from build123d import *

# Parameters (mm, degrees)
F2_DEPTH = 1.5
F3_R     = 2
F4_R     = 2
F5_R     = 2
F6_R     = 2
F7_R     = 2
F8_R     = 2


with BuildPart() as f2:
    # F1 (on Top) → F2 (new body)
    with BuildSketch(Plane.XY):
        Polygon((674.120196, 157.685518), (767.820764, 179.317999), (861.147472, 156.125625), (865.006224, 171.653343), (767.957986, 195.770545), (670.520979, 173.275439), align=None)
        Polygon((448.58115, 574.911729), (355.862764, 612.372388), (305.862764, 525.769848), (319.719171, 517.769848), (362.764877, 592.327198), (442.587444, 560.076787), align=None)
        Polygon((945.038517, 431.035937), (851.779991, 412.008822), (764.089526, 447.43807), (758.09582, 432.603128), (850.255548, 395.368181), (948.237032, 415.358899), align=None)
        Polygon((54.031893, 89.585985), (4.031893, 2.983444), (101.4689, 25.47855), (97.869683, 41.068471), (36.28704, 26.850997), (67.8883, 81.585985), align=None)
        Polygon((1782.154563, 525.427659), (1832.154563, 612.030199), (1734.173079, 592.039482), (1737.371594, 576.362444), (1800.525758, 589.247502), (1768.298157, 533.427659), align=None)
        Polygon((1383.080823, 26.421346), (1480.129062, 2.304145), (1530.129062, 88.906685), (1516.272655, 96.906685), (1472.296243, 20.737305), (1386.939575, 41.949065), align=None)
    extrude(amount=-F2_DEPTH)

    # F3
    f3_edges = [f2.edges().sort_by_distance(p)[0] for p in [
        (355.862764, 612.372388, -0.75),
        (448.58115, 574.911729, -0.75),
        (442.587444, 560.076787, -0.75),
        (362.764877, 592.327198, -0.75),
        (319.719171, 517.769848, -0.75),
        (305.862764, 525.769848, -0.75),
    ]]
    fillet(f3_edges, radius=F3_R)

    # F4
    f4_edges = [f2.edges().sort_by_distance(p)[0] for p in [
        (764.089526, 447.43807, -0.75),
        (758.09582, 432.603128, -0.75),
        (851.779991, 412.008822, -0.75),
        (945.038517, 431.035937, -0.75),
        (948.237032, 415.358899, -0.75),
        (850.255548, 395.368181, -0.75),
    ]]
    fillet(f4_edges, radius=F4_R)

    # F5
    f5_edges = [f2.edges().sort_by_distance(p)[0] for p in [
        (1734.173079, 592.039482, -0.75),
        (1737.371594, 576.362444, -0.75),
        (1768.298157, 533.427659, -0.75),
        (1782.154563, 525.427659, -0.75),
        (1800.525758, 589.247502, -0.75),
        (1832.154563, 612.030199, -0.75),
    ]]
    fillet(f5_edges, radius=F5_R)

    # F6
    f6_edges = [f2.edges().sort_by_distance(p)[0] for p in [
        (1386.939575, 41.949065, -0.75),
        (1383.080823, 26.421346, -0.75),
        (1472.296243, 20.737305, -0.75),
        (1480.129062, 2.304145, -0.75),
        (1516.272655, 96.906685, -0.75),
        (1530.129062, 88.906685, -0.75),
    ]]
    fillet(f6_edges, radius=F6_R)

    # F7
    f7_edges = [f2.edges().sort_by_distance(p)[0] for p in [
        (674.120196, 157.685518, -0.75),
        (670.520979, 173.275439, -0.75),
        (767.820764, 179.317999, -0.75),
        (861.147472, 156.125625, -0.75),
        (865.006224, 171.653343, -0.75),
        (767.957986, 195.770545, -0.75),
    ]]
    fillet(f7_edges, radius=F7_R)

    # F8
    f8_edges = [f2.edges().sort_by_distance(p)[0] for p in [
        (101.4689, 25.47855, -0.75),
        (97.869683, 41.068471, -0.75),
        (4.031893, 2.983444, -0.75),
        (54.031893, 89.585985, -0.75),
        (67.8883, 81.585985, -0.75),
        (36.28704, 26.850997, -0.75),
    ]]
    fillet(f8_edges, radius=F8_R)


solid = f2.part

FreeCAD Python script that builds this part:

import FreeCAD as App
import Part
import Sketcher
Q = App.Units.Quantity


def edges_at(feature, points):
    """Names of the edges that pass closest to the given points."""
    edges = feature.Shape.Edges
    near = lambda p: min(range(len(edges)), key=lambda i: edges[i].distToShape(Part.Vertex(*p))[0])
    return sorted({f"Edge{near(p) + 1}" for p in points})


def add_polygon(sketch, points):
    """Adds a closed chain of lines whose ends are joined by coincident constraints."""
    first, n = sketch.GeometryCount, len(points)
    for a, b in zip(points, points[1:] + points[:1]):
        sketch.addGeometry(Part.LineSegment(App.Vector(*a, 0), App.Vector(*b, 0)), False)
    for i in range(n):
        sketch.addConstraint(Sketcher.Constraint("Coincident", first + i, 2, first + (i + 1) % n, 1))

doc = App.newDocument("Part")
body = doc.addObject("PartDesign::Body", "Body")
body.AllowCompound = True

sketch1 = doc.addObject("Sketcher::SketchObject", "Sketch")
body.addObject(sketch1)
sketch1.AttachmentSupport = (doc.XY_Plane, [""])
sketch1.MapMode = "FlatFace"
add_polygon(sketch1, [(674, 158), (768, 179), (861, 156), (865, 172), (768, 196), (671, 173)])
add_polygon(sketch1, [(449, 575), (356, 612), (306, 526), (320, 518), (363, 592), (443, 560)])
add_polygon(sketch1, [(945, 431), (852, 412), (764, 447), (758, 433), (850, 395), (948, 415)])
add_polygon(sketch1, [(54, 90), (4, 3), (101, 25), (98, 41), (36, 27), (68, 82)])
add_polygon(sketch1, [(1782, 525), (1832, 612), (1734, 592), (1737, 576), (1801, 589), (1768, 533)])
add_polygon(sketch1, [(1383, 26), (1480, 2), (1530, 89), (1516, 97), (1472, 21), (1387, 42)])
sketch1.addConstraint(Sketcher.Constraint("Perpendicular", 1, 2))
sketch1.addConstraint(Sketcher.Constraint("Perpendicular", 2, 3))
sketch1.addConstraint(Sketcher.Constraint("Parallel", 0, 4))
sketch1.addConstraint(Sketcher.Constraint("Perpendicular", 4, 5))
sketch1.addConstraint(Sketcher.Constraint("Perpendicular", 7, 8))
sketch1.addConstraint(Sketcher.Constraint("Perpendicular", 8, 9))
sketch1.addConstraint(Sketcher.Constraint("Parallel", 6, 10))
sketch1.addConstraint(Sketcher.Constraint("Perpendicular", 10, 11))
sketch1.addConstraint(Sketcher.Constraint("Perpendicular", 11, 13))
sketch1.addConstraint(Sketcher.Constraint("Perpendicular", 13, 14))
sketch1.addConstraint(Sketcher.Constraint("Perpendicular", 14, 15))
sketch1.addConstraint(Sketcher.Constraint("Parallel", 12, 16))
sketch1.addConstraint(Sketcher.Constraint("Perpendicular", 16, 17))
sketch1.addConstraint(Sketcher.Constraint("Parallel", 9, 18))
sketch1.addConstraint(Sketcher.Constraint("Perpendicular", 5, 19))
sketch1.addConstraint(Sketcher.Constraint("Perpendicular", 19, 20))
sketch1.addConstraint(Sketcher.Constraint("Perpendicular", 20, 21))
sketch1.addConstraint(Sketcher.Constraint("Parallel", 18, 22))
sketch1.addConstraint(Sketcher.Constraint("Perpendicular", 22, 23))
sketch1.addConstraint(Sketcher.Constraint("Perpendicular", 23, 24))
sketch1.addConstraint(Sketcher.Constraint("Perpendicular", 17, 25))
sketch1.addConstraint(Sketcher.Constraint("Perpendicular", 25, 26))
sketch1.addConstraint(Sketcher.Constraint("Perpendicular", 26, 27))
sketch1.addConstraint(Sketcher.Constraint("Parallel", 24, 28))
sketch1.addConstraint(Sketcher.Constraint("Perpendicular", 28, 29))
sketch1.addConstraint(Sketcher.Constraint("Parallel", 3, 30))
sketch1.addConstraint(Sketcher.Constraint("Perpendicular", 29, 31))
sketch1.addConstraint(Sketcher.Constraint("Perpendicular", 31, 32))
sketch1.addConstraint(Sketcher.Constraint("Perpendicular", 32, 33))
sketch1.addConstraint(Sketcher.Constraint("Parallel", 30, 34))
sketch1.addConstraint(Sketcher.Constraint("Perpendicular", 34, 35))
sketch1.addConstraint(Sketcher.Constraint("Equal", 0, 1))
sketch1.addConstraint(Sketcher.Constraint("Equal", 3, 4))
sketch1.addConstraint(Sketcher.Constraint("Equal", 4, 6))
sketch1.addConstraint(Sketcher.Constraint("Equal", 6, 7))
sketch1.addConstraint(Sketcher.Constraint("Equal", 5, 8))
sketch1.addConstraint(Sketcher.Constraint("Equal", 9, 10))
sketch1.addConstraint(Sketcher.Constraint("Equal", 11, 14))
sketch1.addConstraint(Sketcher.Constraint("Equal", 7, 16))
sketch1.addConstraint(Sketcher.Constraint("Equal", 14, 17))
sketch1.addConstraint(Sketcher.Constraint("Equal", 16, 18))
sketch1.addConstraint(Sketcher.Constraint("Equal", 18, 19))
sketch1.addConstraint(Sketcher.Constraint("Equal", 17, 20))
sketch1.addConstraint(Sketcher.Constraint("Equal", 21, 22))
sketch1.addConstraint(Sketcher.Constraint("Equal", 19, 24))
sketch1.addConstraint(Sketcher.Constraint("Equal", 24, 25))
sketch1.addConstraint(Sketcher.Constraint("Equal", 23, 26))
sketch1.addConstraint(Sketcher.Constraint("Equal", 27, 28))
sketch1.addConstraint(Sketcher.Constraint("Equal", 25, 30))
sketch1.addConstraint(Sketcher.Constraint("Equal", 30, 31))
sketch1.addConstraint(Sketcher.Constraint("Equal", 29, 32))
sketch1.addConstraint(Sketcher.Constraint("Equal", 33, 34))
sketch1.addConstraint(Sketcher.Constraint("Angle", 0, Q("13 deg")))
sketch1.addConstraint(Sketcher.Constraint("Angle", 6, Q("158 deg")))
sketch1.addConstraint(Sketcher.Constraint("Angle", 7, Q("-120 deg")))
sketch1.addConstraint(Sketcher.Constraint("Distance", 2, Q("16 mm")))
sketch1.addConstraint(Sketcher.Constraint("Distance", 3, Q("100 mm")))
sketch1.addConstraint(Sketcher.Constraint("DistanceY", -1, 1, 0, 2, Q("179.317999 mm")))
sketch1.addConstraint(Sketcher.Constraint("DistanceX", 6, 2, 0, 2, Q("411.958 mm")))
sketch1.addConstraint(Sketcher.Constraint("DistanceY", -1, 1, 9, 2, Q("592.327198 mm")))
sketch1.addConstraint(Sketcher.Constraint("DistanceY", -1, 1, 16, 2, Q("415.358899 mm")))
sketch1.addConstraint(Sketcher.Constraint("DistanceX", -1, 1, 19, 2, Q("101.4689 mm")))
sketch1.addConstraint(Sketcher.Constraint("DistanceY", -1, 1, 24, 2, Q("612.030199 mm")))
sketch1.addConstraint(Sketcher.Constraint("DistanceY", 2, 2, 3, 2, Q("24.117202 mm")))
sketch1.addConstraint(Sketcher.Constraint("DistanceY", 19, 2, 8, 2, Q("492.291298 mm")))
sketch1.addConstraint(Sketcher.Constraint("DistanceX", 28, 2, 27, 2, Q("32.227601 mm")))
sketch1.addConstraint(Sketcher.Constraint("DistanceX", 30, 2, 29, 2, Q("302.025501 mm")))
sketch1.addConstraint(Sketcher.Constraint("DistanceY", 30, 2, 26, 2, Q("574.058299 mm")))
sketch1.addConstraint(Sketcher.Constraint("Distance", 15, Q("99.397468 mm")))
sketch1.addConstraint(Sketcher.Constraint("DistanceX", -1, 1, 1, 2, Q("861.147472 mm")))
sketch1.addConstraint(Sketcher.Constraint("DistanceX", -1, 1, 12, 2, Q("851.779991 mm")))
sketch1.addConstraint(Sketcher.Constraint("DistanceX", -1, 1, 25, 2, Q("1734.173079 mm")))
pad1 = doc.addObject("PartDesign::Pad", "Pad")
body.addObject(pad1)
pad1.Profile = sketch1
pad1.Length = 1.5
pad1.Reversed = True
doc.recompute()

fillet = doc.addObject("PartDesign::Fillet", "Fillet")
body.addObject(fillet)
fillet.Base = (pad1, edges_at(pad1, [
    (355.863, 612.372, -0.75),
    (448.581, 574.912, -0.75),
    (442.587, 560.077, -0.75),
    (362.765, 592.327, -0.75),
    (319.719, 517.77, -0.75),
    (305.863, 525.77, -0.75),
]))
fillet.Radius = 2
doc.recompute()

fillet2 = doc.addObject("PartDesign::Fillet", "Fillet001")
body.addObject(fillet2)
fillet2.Base = (fillet, edges_at(fillet, [
    (764.09, 447.438, -0.75),
    (758.096, 432.603, -0.75),
    (851.78, 412.009, -0.75),
    (945.039, 431.036, -0.75),
    (948.237, 415.359, -0.75),
    (850.256, 395.368, -0.75),
]))
fillet2.Radius = 2
doc.recompute()

fillet3 = doc.addObject("PartDesign::Fillet", "Fillet002")
body.addObject(fillet3)
fillet3.Base = (fillet2, edges_at(fillet2, [
    (1734.173, 592.039, -0.75),
    (1737.372, 576.362, -0.75),
    (1768.298, 533.428, -0.75),
    (1782.155, 525.428, -0.75),
    (1800.526, 589.248, -0.75),
    (1832.155, 612.03, -0.75),
]))
fillet3.Radius = 2
doc.recompute()

fillet4 = doc.addObject("PartDesign::Fillet", "Fillet003")
body.addObject(fillet4)
fillet4.Base = (fillet3, edges_at(fillet3, [
    (1386.94, 41.949, -0.75),
    (1383.081, 26.421, -0.75),
    (1472.296, 20.737, -0.75),
    (1480.129, 2.304, -0.75),
    (1516.273, 96.907, -0.75),
    (1530.129, 88.907, -0.75),
]))
fillet4.Radius = 2
doc.recompute()

fillet5 = doc.addObject("PartDesign::Fillet", "Fillet004")
body.addObject(fillet5)
fillet5.Base = (fillet4, edges_at(fillet4, [
    (674.12, 157.686, -0.75),
    (670.521, 173.275, -0.75),
    (767.821, 179.318, -0.75),
    (861.147, 156.126, -0.75),
    (865.006, 171.653, -0.75),
    (767.958, 195.771, -0.75),
]))
fillet5.Radius = 2
doc.recompute()

fillet6 = doc.addObject("PartDesign::Fillet", "Fillet005")
body.addObject(fillet6)
fillet6.Base = (fillet5, edges_at(fillet5, [
    (101.469, 25.479, -0.75),
    (97.87, 41.068, -0.75),
    (4.032, 2.983, -0.75),
    (54.032, 89.586, -0.75),
    (67.888, 81.586, -0.75),
    (36.287, 26.851, -0.75),
]))
fillet6.Radius = 2

doc.recompute()
